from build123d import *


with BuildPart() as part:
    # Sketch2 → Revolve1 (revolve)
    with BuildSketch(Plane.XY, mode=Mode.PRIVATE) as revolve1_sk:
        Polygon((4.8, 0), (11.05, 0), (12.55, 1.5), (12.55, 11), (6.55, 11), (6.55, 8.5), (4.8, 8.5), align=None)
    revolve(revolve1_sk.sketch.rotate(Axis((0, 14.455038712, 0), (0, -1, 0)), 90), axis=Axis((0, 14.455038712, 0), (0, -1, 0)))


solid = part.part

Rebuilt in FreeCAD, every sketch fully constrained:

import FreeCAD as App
import Part
import Sketcher

V = App.Vector
Q = App.Units.Quantity


def add_polygon(sketch, points):
    """Adds a closed chain of lines whose ends are joined by coincident constraints."""
    first, n = sketch.GeometryCount, len(points)
    for a, b in zip(points, points[1:] + points[:1]):
        sketch.addGeometry(Part.LineSegment(App.Vector(*a, 0), App.Vector(*b, 0)), False)
    for i in range(n):
        sketch.addConstraint(Sketcher.Constraint("Coincident", first + i, 2, first + (i + 1) % n, 1))

doc = App.newDocument("Part")
body = doc.addObject("PartDesign::Body", "Body")

sketch1 = doc.addObject("Sketcher::SketchObject", "Sketch")
body.addObject(sketch1)
sketch1.AttachmentSupport = (doc.XY_Plane, [""])
sketch1.MapMode = "FlatFace"
add_polygon(sketch1, [(4.8, 0), (11.1, 0), (12.6, 1.5), (12.6, 11), (6.5, 11), (6.5, 8.5), (4.8, 8.5)])
sketch1.addConstraint([
    Sketcher.Constraint("Horizontal", 0),
    Sketcher.Constraint("Vertical", 2),
    Sketcher.Constraint("Horizontal", 3),
    Sketcher.Constraint("Vertical", 4),
    Sketcher.Constraint("Horizontal", 5),
    Sketcher.Constraint("Vertical", 6),
    Sketcher.Constraint("PointOnObject", 0, 2, -1),
    Sketcher.Constraint("DistanceX", 3, 2, 3, 1, 6.0),
    Sketcher.Constraint("Angle", 1, Q("45 deg")),
    Sketcher.Constraint("DistanceY", 2, 1, 2, 2, 9.5),
    Sketcher.Constraint("DistanceY", 4, 2, 4, 1, 2.5),
    Sketcher.Constraint("DistanceY", 6, 2, 6, 1, 8.5),
    Sketcher.Constraint("DistanceX", 0, 1, 0, 2, 6.25),
    Sketcher.Constraint("DistanceX", -1, 1, 5, 2, 4.8),
])
revolution = doc.addObject("PartDesign::Revolution", "Revolution")
body.addObject(revolution)
revolution.Profile = sketch1
revolution.ReferenceAxis = (sketch1, ["V_Axis"])
revolution.Angle = 360

doc.recompute()
